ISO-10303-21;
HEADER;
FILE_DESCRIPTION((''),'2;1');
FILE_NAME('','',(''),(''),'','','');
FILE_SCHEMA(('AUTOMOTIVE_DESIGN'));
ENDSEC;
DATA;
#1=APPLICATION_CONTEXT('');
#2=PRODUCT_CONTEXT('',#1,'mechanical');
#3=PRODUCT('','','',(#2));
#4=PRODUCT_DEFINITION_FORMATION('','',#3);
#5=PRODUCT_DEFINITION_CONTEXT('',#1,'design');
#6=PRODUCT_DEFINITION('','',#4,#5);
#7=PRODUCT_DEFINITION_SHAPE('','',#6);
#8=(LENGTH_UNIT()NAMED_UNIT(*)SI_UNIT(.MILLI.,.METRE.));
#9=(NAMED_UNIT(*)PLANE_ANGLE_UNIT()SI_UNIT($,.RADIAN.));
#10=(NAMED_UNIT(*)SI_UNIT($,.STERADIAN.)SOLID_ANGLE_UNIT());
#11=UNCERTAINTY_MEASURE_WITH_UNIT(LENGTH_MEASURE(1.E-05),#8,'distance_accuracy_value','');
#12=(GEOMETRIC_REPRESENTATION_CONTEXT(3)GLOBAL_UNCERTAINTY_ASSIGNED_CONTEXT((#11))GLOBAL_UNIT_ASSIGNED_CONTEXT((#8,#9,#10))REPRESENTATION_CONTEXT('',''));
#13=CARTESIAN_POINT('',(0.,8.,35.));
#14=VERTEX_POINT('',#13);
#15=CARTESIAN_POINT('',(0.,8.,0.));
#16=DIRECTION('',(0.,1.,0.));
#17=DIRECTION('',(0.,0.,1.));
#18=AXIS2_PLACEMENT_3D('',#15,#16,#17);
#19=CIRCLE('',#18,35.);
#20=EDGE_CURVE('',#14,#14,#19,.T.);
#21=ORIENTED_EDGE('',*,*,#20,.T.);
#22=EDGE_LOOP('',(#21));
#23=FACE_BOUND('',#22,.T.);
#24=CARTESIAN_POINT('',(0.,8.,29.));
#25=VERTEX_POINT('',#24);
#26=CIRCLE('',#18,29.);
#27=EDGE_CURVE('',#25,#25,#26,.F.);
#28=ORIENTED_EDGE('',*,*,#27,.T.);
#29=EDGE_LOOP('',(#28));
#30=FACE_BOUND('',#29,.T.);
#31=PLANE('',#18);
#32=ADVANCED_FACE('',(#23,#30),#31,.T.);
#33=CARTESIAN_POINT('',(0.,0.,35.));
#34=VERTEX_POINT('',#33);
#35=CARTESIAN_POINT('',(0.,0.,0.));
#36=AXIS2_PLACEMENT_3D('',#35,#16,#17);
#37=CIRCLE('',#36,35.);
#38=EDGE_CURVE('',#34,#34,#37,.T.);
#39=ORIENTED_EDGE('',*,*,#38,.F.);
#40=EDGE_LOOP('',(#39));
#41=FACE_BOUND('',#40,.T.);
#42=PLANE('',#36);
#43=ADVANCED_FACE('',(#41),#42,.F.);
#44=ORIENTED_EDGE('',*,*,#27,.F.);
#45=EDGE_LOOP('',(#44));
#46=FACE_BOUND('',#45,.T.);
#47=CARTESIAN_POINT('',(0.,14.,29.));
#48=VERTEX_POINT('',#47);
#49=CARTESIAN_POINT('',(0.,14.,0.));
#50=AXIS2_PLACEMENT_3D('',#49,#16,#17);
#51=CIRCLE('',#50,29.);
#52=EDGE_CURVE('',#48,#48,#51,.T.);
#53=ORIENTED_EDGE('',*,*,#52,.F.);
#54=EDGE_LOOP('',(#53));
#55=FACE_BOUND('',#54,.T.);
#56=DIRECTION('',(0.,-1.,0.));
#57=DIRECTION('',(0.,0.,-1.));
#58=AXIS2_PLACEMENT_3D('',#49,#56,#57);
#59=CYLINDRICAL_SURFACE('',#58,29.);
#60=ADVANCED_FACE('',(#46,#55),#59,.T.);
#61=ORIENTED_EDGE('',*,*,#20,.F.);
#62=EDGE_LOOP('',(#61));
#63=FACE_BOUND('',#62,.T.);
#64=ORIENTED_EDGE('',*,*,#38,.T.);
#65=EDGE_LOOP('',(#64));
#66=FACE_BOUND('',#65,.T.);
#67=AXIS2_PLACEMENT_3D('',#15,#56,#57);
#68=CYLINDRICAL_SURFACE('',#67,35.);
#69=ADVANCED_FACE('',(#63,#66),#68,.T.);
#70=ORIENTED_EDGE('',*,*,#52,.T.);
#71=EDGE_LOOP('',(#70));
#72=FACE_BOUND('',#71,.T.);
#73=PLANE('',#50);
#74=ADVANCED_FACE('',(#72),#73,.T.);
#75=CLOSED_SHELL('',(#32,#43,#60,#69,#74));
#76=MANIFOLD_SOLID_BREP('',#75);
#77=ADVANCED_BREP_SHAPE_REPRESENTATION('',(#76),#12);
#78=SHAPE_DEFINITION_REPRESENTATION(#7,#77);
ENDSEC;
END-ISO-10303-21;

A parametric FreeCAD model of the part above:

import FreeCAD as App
import Part
import Sketcher

doc = App.newDocument("Part")
body = doc.addObject("PartDesign::Body", "Body")

sketch1 = doc.addObject("Sketcher::SketchObject", "Sketch")
body.addObject(sketch1)
sketch1.AttachmentSupport = (doc.XZ_Plane, [""])
sketch1.MapMode = "FlatFace"
sketch1.addGeometry(Part.Circle(App.Vector(0, 0, 0), App.Vector(0, 0, 1), 35), False)
sketch1.addConstraint([
    Sketcher.Constraint("Coincident", 0, 3, -1, 1),
    Sketcher.Constraint("Diameter", 0, 70.0),
])
pad1 = doc.addObject("PartDesign::Pad", "Pad")
body.addObject(pad1)
pad1.Profile = sketch1
pad1.Length = 8
pad1.Reversed = True

sketch2 = doc.addObject("Sketcher::SketchObject", "Sketch001")
body.addObject(sketch2)
sketch2.AttachmentSupport = (doc.XZ_Plane, [""])
sketch2.MapMode = "FlatFace"
sketch2.addGeometry(Part.Circle(App.Vector(0, 0, 0), App.Vector(0, 0, 1), 29), False)
sketch2.addConstraint([
    Sketcher.Constraint("Coincident", 0, 3, -1, 1),
    Sketcher.Constraint("Diameter", 0, 58.0),
])
pad2 = doc.addObject("PartDesign::Pad", "Pad001")
body.addObject(pad2)
pad2.Profile = sketch2
pad2.Length = 14
pad2.Reversed = True

doc.recompute()
